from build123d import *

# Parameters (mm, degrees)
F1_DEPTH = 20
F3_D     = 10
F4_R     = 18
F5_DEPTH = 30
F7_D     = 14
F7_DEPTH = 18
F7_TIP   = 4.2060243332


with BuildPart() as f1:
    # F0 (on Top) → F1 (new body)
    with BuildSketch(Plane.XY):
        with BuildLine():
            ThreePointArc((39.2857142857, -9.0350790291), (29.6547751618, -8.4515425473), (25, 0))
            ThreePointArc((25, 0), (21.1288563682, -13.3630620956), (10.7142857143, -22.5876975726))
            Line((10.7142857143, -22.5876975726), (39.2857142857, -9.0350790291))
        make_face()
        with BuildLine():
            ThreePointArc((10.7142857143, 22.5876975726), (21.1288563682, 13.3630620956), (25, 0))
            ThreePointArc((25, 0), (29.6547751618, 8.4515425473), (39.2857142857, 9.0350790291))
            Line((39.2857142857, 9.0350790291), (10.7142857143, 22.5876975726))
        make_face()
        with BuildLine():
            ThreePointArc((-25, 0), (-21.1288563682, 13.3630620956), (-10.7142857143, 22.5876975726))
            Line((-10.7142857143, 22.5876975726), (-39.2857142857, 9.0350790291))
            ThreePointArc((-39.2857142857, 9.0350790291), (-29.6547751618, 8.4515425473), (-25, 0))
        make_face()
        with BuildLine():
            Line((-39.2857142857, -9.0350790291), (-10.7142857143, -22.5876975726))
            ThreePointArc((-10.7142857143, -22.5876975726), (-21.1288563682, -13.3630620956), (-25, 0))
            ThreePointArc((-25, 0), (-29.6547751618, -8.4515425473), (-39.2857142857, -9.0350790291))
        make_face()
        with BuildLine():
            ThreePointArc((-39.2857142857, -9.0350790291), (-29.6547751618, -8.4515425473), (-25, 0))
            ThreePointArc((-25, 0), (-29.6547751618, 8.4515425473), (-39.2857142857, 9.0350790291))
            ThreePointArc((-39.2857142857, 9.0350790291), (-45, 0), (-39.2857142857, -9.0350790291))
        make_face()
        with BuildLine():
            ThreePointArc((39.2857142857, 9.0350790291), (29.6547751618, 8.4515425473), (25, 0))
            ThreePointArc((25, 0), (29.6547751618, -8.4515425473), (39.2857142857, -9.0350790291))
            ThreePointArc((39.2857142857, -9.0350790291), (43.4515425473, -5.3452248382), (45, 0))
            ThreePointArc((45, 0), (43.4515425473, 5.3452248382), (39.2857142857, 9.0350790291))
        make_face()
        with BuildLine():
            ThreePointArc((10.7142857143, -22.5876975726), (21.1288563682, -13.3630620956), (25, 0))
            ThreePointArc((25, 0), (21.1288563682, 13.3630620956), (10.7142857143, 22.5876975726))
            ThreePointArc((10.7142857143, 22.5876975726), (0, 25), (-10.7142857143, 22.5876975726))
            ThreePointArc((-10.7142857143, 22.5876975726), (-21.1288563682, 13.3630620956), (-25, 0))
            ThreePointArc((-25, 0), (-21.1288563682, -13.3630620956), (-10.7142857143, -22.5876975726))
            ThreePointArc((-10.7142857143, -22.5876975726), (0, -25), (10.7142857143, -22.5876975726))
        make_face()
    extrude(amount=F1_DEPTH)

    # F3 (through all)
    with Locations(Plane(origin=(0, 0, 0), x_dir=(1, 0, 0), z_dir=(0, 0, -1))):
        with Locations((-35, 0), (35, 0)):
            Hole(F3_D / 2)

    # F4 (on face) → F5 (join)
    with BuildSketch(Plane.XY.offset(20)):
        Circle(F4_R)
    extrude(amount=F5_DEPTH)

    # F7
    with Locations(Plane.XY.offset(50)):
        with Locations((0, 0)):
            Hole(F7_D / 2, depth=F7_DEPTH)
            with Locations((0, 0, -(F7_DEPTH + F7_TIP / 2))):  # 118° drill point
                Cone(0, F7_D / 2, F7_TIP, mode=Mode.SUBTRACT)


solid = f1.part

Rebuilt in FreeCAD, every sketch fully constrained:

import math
import FreeCAD as App
import Part
import Sketcher
from FreeCAD import Vector

doc = App.newDocument("Part")
params = doc.addObject("Spreadsheet::Sheet", "Params")
for row, (alias, value) in enumerate([
    ("sketch1_radius", "10 mm"),
    ("sketch1_radius2", "25 mm"),
    ("pad1_length", "20 mm"),
    ("sketch2_diameter", "10 mm"),
    ("hole_diameter", "10 mm"),
    ("sketch3_diameter", "36 mm"),
    ("pad2_length", "30 mm"),
    ("sketch4_diameter", "14 mm"),
    ("hole2_diameter", "14 mm"),
    ("hole2_depth", "18 mm"),
], start=1):
    params.set(f"A{row}", alias)
    params.set(f"B{row}", "=" + value)
    params.setAlias(f"B{row}", alias)

body = doc.addObject("PartDesign::Body", "Body")

# Sketch on XY plane
sketch1 = body.newObject("Sketcher::SketchObject", "Sketch")
sketch1.AttachmentSupport = (doc.getObject("XY_Plane"), [""])
sketch1.MapMode = "FlatFace"
sketch1.addGeometry(Part.LineSegment(Vector(11, -23, 0), Vector(39, -9, 0)), False)
sketch1.addGeometry(Part.ArcOfCircle(Part.Circle(Vector(35, 0, 0), Vector(0, 0, 1), 10), math.radians(-65), math.radians(0)), False)
sketch1.addGeometry(Part.ArcOfCircle(Part.Circle(Vector(35, 0, 0), Vector(0, 0, 1), 10), math.radians(0), math.radians(65)), False)
sketch1.addGeometry(Part.LineSegment(Vector(39, 9, 0), Vector(11, 23, 0)), False)
sketch1.addGeometry(Part.ArcOfCircle(Part.Circle(Vector(0, 0, 0), Vector(0, 0, 1), 25), math.radians(65), math.radians(115)), False)
sketch1.addGeometry(Part.LineSegment(Vector(-11, 23, 0), Vector(-39, 9, 0)), False)
sketch1.addGeometry(Part.ArcOfCircle(Part.Circle(Vector(-35, 0, 0), Vector(0, 0, 1), 10), math.radians(115), math.radians(245)), False)
sketch1.addGeometry(Part.LineSegment(Vector(-39, -9, 0), Vector(-11, -23, 0)), False)
sketch1.addGeometry(Part.ArcOfCircle(Part.Circle(Vector(0, 0, 0), Vector(0, 0, 1), 25), math.radians(-115), math.radians(-65)), False)
sketch1.addConstraint(Sketcher.Constraint("Tangent", 0, 2, 1, 1))
sketch1.addConstraint(Sketcher.Constraint("Tangent", 1, 2, 2, 1))
sketch1.addConstraint(Sketcher.Constraint("Tangent", 2, 2, 3, 1))
sketch1.addConstraint(Sketcher.Constraint("Tangent", 3, 2, 4, 1))
sketch1.addConstraint(Sketcher.Constraint("Tangent", 4, 2, 5, 1))
sketch1.addConstraint(Sketcher.Constraint("Tangent", 5, 2, 6, 1))
sketch1.addConstraint(Sketcher.Constraint("Tangent", 6, 2, 7, 1))
sketch1.addConstraint(Sketcher.Constraint("Tangent", 7, 2, 8, 1))
sketch1.addConstraint(Sketcher.Constraint("Tangent", 8, 2, 0, 1))
sketch1.addConstraint(Sketcher.Constraint("Coincident", 4, 3, -1, 1))
sketch1.addConstraint(Sketcher.Constraint("Coincident", 8, 3, -1, 1))
sketch1.addConstraint(Sketcher.Constraint("Equal", 1, 2))
sketch1.addConstraint(Sketcher.Constraint("Equal", 2, 6))
sketch1.addConstraint(Sketcher.Constraint("Equal", 4, 8))
sketch1.addConstraint(Sketcher.Constraint("Symmetric", 1, 3, 6, 3, -1, 1))
sketch1.addConstraint(Sketcher.Constraint("PointOnObject", 1, 3, -1))
sketch1.addConstraint(Sketcher.Constraint("PointOnObject", 1, 2, -1))
sketch1.addConstraint(Sketcher.Constraint("Radius", 1, 10.0))
sketch1.addConstraint(Sketcher.Constraint("Radius", 4, 25.0))
sketch1.addConstraint(Sketcher.Constraint("DistanceX", -1, 1, 1, 3, 35.0))
sketch1.setExpression("Constraints[17]", "Params.sketch1_radius")
sketch1.setExpression("Constraints[18]", "Params.sketch1_radius2")
pad1 = body.newObject("PartDesign::Pad", "Pad")
pad1.Profile = sketch1
pad1.setExpression("Length", "Params.pad1_length")

# Sketch on XY plane
sketch2 = body.newObject("Sketcher::SketchObject", "Sketch001")
sketch2.AttachmentSupport = (doc.getObject("XY_Plane"), [""])
sketch2.MapMode = "FlatFace"
sketch2.addGeometry(Part.Circle(Vector(-35, 0, 0), Vector(0, 0, 1), 5), False)
sketch2.addGeometry(Part.Circle(Vector(35, 0, 0), Vector(0, 0, 1), 5), False)
sketch2.addConstraint(Sketcher.Constraint("Equal", 0, 1))
sketch2.addConstraint(Sketcher.Constraint("Symmetric", 0, 3, 1, 3, -1, 1))
sketch2.addConstraint(Sketcher.Constraint("PointOnObject", 0, 3, -1))
sketch2.addConstraint(Sketcher.Constraint("Diameter", 0, 10.0))
sketch2.addConstraint(Sketcher.Constraint("DistanceX", 0, 3, -1, 1, 35.0))
sketch2.setExpression("Constraints[3]", "Params.sketch2_diameter")
doc.recompute()
hole = body.newObject("PartDesign::Hole", "Hole")
hole.Profile = sketch2
hole.ThreadType = "None"
hole.setExpression("Diameter", "Params.hole_diameter")
hole.DepthType = "ThroughAll"
hole.Reversed = True

# Sketch on XY plane
sketch3 = body.newObject("Sketcher::SketchObject", "Sketch002")
sketch3.AttachmentSupport = (doc.getObject("XY_Plane"), [""])
sketch3.MapMode = "FlatFace"
sketch3.AttachmentOffset = App.Placement(Vector(0, 0, 20), App.Rotation())
sketch3.addGeometry(Part.Circle(Vector(0, 0, 0), Vector(0, 0, 1), 18), False)
sketch3.addConstraint(Sketcher.Constraint("Coincident", 0, 3, -1, 1))
sketch3.addConstraint(Sketcher.Constraint("Diameter", 0, 36.0))
sketch3.setExpression("Constraints[1]", "Params.sketch3_diameter")
pad2 = body.newObject("PartDesign::Pad", "Pad001")
pad2.Profile = sketch3
pad2.setExpression("Length", "Params.pad2_length")

# Sketch on XY plane
sketch4 = body.newObject("Sketcher::SketchObject", "Sketch003")
sketch4.AttachmentSupport = (doc.getObject("XY_Plane"), [""])
sketch4.MapMode = "FlatFace"
sketch4.AttachmentOffset = App.Placement(Vector(0, 0, 50), App.Rotation())
sketch4.addGeometry(Part.Circle(Vector(0, 0, 0), Vector(0, 0, 1), 7), False)
sketch4.addConstraint(Sketcher.Constraint("Coincident", 0, 3, -1, 1))
sketch4.addConstraint(Sketcher.Constraint("Diameter", 0, 14.0))
sketch4.setExpression("Constraints[1]", "Params.sketch4_diameter")
doc.recompute()
hole2 = body.newObject("PartDesign::Hole", "Hole001")
hole2.Profile = sketch4
hole2.ThreadType = "None"
hole2.setExpression("Diameter", "Params.hole2_diameter")
hole2.DepthType = "Dimension"
hole2.setExpression("Depth", "Params.hole2_depth")
hole2.DrillPoint = "Angled"
hole2.DrillPointAngle = 118

doc.recompute()
